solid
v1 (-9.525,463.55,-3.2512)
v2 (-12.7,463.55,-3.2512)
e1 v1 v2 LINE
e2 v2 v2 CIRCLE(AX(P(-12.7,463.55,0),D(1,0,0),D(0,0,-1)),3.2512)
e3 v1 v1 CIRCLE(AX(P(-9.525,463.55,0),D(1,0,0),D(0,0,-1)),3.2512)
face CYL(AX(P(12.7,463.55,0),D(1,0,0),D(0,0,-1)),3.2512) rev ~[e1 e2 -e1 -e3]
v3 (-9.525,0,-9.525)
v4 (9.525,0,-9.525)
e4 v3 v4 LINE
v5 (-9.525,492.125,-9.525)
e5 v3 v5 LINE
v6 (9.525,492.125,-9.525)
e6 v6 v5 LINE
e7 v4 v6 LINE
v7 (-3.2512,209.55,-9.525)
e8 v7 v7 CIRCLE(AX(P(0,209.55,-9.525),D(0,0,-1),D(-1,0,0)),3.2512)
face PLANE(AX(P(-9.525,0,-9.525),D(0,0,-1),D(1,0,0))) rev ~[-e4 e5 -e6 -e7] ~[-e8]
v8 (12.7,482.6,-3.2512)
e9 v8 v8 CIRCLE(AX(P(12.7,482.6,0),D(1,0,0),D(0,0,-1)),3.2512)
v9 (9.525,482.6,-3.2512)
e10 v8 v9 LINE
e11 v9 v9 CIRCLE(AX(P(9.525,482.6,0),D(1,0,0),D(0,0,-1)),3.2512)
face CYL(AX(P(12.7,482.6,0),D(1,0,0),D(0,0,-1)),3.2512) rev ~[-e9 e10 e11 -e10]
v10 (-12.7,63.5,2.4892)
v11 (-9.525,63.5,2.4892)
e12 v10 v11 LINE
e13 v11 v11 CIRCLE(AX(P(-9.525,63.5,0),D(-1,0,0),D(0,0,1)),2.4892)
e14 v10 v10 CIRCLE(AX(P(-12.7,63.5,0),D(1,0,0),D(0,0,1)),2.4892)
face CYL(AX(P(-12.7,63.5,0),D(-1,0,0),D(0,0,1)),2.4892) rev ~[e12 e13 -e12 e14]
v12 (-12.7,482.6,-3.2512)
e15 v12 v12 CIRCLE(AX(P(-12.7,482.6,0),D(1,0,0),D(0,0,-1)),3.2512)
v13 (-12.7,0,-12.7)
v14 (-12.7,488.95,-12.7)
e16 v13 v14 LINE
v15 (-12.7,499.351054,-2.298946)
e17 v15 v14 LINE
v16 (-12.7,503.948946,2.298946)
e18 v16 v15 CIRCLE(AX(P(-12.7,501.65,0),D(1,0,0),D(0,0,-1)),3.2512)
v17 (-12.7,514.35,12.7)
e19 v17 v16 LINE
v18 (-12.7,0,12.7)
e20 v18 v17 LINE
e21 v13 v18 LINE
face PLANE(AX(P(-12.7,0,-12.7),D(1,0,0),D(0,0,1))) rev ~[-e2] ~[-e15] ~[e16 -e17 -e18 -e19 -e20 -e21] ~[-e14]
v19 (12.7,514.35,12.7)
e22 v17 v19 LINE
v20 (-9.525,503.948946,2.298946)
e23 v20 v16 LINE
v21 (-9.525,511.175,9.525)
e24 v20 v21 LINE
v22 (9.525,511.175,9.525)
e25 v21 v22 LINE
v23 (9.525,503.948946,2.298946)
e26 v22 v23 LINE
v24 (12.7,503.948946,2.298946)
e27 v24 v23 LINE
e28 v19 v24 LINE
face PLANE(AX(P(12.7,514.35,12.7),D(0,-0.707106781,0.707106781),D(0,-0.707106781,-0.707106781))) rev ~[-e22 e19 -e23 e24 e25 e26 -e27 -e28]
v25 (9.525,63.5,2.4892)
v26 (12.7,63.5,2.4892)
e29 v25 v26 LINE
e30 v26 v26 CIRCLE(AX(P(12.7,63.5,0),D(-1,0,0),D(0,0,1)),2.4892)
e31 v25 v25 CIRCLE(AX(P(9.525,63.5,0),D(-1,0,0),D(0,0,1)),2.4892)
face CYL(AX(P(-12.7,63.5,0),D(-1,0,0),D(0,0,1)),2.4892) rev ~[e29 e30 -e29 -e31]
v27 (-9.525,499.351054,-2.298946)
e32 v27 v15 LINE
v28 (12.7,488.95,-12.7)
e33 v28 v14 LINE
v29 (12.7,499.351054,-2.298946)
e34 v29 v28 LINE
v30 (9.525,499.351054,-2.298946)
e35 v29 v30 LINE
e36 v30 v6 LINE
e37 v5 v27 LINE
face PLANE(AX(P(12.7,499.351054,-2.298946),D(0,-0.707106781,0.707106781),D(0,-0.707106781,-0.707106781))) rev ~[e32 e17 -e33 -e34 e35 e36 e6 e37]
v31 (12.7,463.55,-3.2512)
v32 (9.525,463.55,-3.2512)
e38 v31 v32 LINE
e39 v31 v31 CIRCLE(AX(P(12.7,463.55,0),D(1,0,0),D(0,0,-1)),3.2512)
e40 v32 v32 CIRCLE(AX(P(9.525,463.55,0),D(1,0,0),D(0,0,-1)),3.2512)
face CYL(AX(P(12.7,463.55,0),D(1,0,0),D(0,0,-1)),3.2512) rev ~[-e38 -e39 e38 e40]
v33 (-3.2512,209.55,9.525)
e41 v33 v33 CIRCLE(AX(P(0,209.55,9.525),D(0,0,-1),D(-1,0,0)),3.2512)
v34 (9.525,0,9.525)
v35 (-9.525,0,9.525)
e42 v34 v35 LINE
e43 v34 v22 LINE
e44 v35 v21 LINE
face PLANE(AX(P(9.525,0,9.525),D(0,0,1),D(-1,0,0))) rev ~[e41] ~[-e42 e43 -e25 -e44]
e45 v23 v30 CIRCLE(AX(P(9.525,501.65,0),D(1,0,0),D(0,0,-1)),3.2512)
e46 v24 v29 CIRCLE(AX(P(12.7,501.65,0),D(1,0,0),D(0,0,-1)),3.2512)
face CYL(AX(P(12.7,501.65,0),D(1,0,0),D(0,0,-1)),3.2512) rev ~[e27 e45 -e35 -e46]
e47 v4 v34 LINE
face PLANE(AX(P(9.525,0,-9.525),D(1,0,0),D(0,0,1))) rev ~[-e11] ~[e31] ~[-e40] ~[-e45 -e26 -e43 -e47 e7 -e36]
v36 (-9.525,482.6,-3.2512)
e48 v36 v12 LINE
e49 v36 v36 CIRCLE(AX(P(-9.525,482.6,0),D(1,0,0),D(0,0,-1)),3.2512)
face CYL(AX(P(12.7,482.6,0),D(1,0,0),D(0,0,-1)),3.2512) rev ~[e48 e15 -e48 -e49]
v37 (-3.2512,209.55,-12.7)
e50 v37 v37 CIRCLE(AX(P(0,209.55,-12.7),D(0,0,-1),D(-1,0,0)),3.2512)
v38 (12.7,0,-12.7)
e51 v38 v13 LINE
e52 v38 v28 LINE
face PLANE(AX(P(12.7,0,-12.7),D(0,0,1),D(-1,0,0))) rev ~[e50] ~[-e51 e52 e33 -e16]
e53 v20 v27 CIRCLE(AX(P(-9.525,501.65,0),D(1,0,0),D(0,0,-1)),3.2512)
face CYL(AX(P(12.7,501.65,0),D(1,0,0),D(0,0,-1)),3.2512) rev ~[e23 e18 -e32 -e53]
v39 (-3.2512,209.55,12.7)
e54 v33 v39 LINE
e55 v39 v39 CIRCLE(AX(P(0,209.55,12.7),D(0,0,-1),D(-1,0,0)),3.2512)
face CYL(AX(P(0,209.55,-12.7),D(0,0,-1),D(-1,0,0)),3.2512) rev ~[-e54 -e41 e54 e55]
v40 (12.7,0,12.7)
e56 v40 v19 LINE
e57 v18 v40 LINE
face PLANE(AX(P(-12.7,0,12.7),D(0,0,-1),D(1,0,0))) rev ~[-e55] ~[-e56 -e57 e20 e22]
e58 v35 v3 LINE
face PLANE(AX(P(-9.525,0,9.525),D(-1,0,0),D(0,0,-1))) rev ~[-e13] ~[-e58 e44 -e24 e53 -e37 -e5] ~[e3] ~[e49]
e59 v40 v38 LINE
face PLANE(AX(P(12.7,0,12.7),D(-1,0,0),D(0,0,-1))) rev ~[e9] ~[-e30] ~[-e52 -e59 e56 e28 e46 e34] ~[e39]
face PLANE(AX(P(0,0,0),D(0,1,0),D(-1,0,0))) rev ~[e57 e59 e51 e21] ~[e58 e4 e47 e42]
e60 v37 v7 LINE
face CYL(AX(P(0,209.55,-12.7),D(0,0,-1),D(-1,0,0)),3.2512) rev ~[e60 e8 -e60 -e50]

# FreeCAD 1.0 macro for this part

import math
import FreeCAD as App
import Part
import Sketcher

V = App.Vector
Q = App.Units.Quantity

doc = App.newDocument("Part")
params = doc.addObject("Spreadsheet::Sheet", "Params")
for row, (alias, value) in enumerate([
    ("sketch1_width", "1 in"),
    ("pad1_length", "20.25 in"),
    ("sketch2_width", "1 in"),
    ("sketch2_diameter", "0.256 in"),
    ("pocket1_length", "20.56 in"),
    ("sketch3_diameter", "0.256 in"),
    ("pocket2_length", "1 in"),
    ("sketch4_diameter", "0.196 in"),
    ("pocket3_length", "1 in"),
], start=1):
    params.set(f"A{row}", alias)
    params.set(f"B{row}", "=" + value)
    params.setAlias(f"B{row}", alias)

body = doc.addObject("PartDesign::Body", "Body")

# Sketch on XZ plane
sketch1 = body.newObject("Sketcher::SketchObject", "Sketch")
sketch1.AttachmentSupport = (doc.getObject("XZ_Plane"), [""])
sketch1.MapMode = "FlatFace"
sketch1.addGeometry([
    Part.LineSegment(V(12.7, 12.7, 0), V(12.7, -12.7, 0)),  # 0
    Part.LineSegment(V(12.7, -12.7, 0), V(-12.7, -12.7, 0)),  # 1
    Part.LineSegment(V(-12.7, -12.7, 0), V(-12.7, 12.7, 0)),  # 2
    Part.LineSegment(V(-12.7, 12.7, 0), V(12.7, 12.7, 0)),  # 3
    Part.LineSegment(V(9.525, 9.525, 0), V(-9.525, 9.525, 0)),  # 4
    Part.LineSegment(V(-9.525, 9.525, 0), V(-9.525, -9.525, 0)),  # 5
    Part.LineSegment(V(-9.525, -9.525, 0), V(9.525, -9.525, 0)),  # 6
    Part.LineSegment(V(9.525, -9.525, 0), V(9.525, 9.525, 0)),  # 7
], False)
sketch1.addConstraint([
    Sketcher.Constraint("Coincident", 0, 2, 1, 1),
    Sketcher.Constraint("Coincident", 1, 2, 2, 1),
    Sketcher.Constraint("Coincident", 2, 2, 3, 1),
    Sketcher.Constraint("Coincident", 3, 2, 0, 1),
    Sketcher.Constraint("Coincident", 4, 2, 5, 1),
    Sketcher.Constraint("Coincident", 5, 2, 6, 1),
    Sketcher.Constraint("Coincident", 6, 2, 7, 1),
    Sketcher.Constraint("Coincident", 7, 2, 4, 1),
    Sketcher.Constraint("Vertical", 0),
    Sketcher.Constraint("Horizontal", 1),
    Sketcher.Constraint("Vertical", 2),
    Sketcher.Constraint("Horizontal", 3),
    Sketcher.Constraint("Horizontal", 4),
    Sketcher.Constraint("Vertical", 5),
    Sketcher.Constraint("Horizontal", 6),
    Sketcher.Constraint("Vertical", 7),
    Sketcher.Constraint("Symmetric", 0, 2, 2, 2, -1, 1),
    Sketcher.Constraint("Symmetric", 4, 2, 6, 2, -1, 1),
    Sketcher.Constraint("Equal", 3, 0),
    Sketcher.Constraint("Equal", 6, 5),
    Sketcher.Constraint("DistanceX", 1, 2, 1, 1, Q("1 in")),
    Sketcher.Constraint("DistanceX", 2, 2, 4, 2, Q("0.125 in")),
])
sketch1.setExpression("Constraints[20]", "Params.sketch1_width")
pad1 = body.newObject("PartDesign::Pad", "Pad")
pad1.Profile = sketch1
pad1.setExpression("Length", "Params.pad1_length")
pad1.Reversed = True

# Sketch on YZ plane
sketch2 = body.newObject("Sketcher::SketchObject", "Sketch001")
sketch2.AttachmentSupport = (doc.getObject("YZ_Plane"), [""])
sketch2.MapMode = "FlatFace"
sketch2.AttachmentOffset = App.Placement(V(0, 0, 0.5 * 25.4), App.Rotation())
sketch2.addGeometry([
    Part.LineSegment(V(488.95, -12.7, 0), V(514.35, -12.7, 0)),  # 0
    Part.LineSegment(V(514.35, -12.7, 0), V(514.35, 12.7, 0)),  # 1
    Part.LineSegment(V(514.35, 12.7, 0), V(503.948946, 2.298946, 0)),  # 2
    Part.ArcOfCircle(Part.Circle(V(501.65, 0, 0), V(0, 0, 1), 3.2512), math.radians(45), math.radians(225)),  # 3
    Part.LineSegment(V(499.351054, -2.298946, 0), V(488.95, -12.7, 0)),  # 4
    Part.Circle(V(482.6, 0, 0), V(0, 0, 1), 3.2512),  # 5
    Part.Circle(V(463.55, 0, 0), V(0, 0, 1), 3.2512),  # 6
], False)
sketch2.addConstraint([
    Sketcher.Constraint("Coincident", 0, 2, 1, 1),
    Sketcher.Constraint("Coincident", 1, 2, 2, 1),
    Sketcher.Constraint("Coincident", 2, 2, 3, 1),
    Sketcher.Constraint("Coincident", 3, 2, 4, 1),
    Sketcher.Constraint("Coincident", 4, 2, 0, 1),
    Sketcher.Constraint("Horizontal", 0),
    Sketcher.Constraint("Vertical", 1),
    Sketcher.Constraint("Equal", 3, 5),
    Sketcher.Constraint("Equal", 5, 6),
    Sketcher.Constraint("PointOnObject", 3, 3, -1),
    Sketcher.Constraint("PointOnObject", 5, 3, -1),
    Sketcher.Constraint("PointOnObject", 6, 3, -1),
    Sketcher.Constraint("Parallel", 2, 4),
    Sketcher.Constraint("Equal", 0, 1),
    Sketcher.Constraint("Equal", 2, 4),
    Sketcher.Constraint("DistanceX", 0, 1, 0, 2, Q("1 in")),
    Sketcher.Constraint("Diameter", 5, Q("0.256 in")),
    Sketcher.Constraint("DistanceX", 5, 3, 3, 3, Q("0.75 in")),
    Sketcher.Constraint("DistanceX", 6, 3, 5, 3, Q("0.75 in")),
    Sketcher.Constraint("DistanceX", 5, 3, 0, 2, Q("1.25 in")),
    Sketcher.Constraint("DistanceX", -1, 1, 5, 3, Q("19 in")),
    Sketcher.Constraint("Angle", 2, Q("-135 deg")),
])
sketch2.setExpression("Constraints[15]", "Params.sketch2_width")
sketch2.setExpression("Constraints[16]", "Params.sketch2_diameter")
pocket1 = body.newObject("PartDesign::Pocket", "Pocket")
pocket1.Profile = sketch2
pocket1.setExpression("Length", "Params.pocket1_length")

# Sketch on XY plane
sketch3 = body.newObject("Sketcher::SketchObject", "Sketch002")
sketch3.AttachmentSupport = (doc.getObject("XY_Plane"), [""])
sketch3.MapMode = "FlatFace"
sketch3.AttachmentOffset = App.Placement(V(0, 0, -0.5 * 25.4), App.Rotation())
sketch3.addGeometry(Part.Circle(V(0, 209.55, 0), V(0, 0, 1), 3.2512), False)
sketch3.addConstraint([
    Sketcher.Constraint("PointOnObject", 0, 3, -2),
    Sketcher.Constraint("Diameter", 0, Q("0.256 in")),
    Sketcher.Constraint("DistanceY", -1, 1, 0, 3, Q("8.25 in")),
])
sketch3.setExpression("Constraints[1]", "Params.sketch3_diameter")
pocket2 = body.newObject("PartDesign::Pocket", "Pocket001")
pocket2.Profile = sketch3
pocket2.setExpression("Length", "Params.pocket2_length")
pocket2.Reversed = True

# Sketch on YZ plane
sketch4 = body.newObject("Sketcher::SketchObject", "Sketch003")
sketch4.AttachmentSupport = (doc.getObject("YZ_Plane"), [""])
sketch4.MapMode = "FlatFace"
sketch4.AttachmentOffset = App.Placement(V(0, 0, -0.5 * 25.4), App.Rotation())
sketch4.addGeometry(Part.Circle(V(63.5, 0, 0), V(0, 0, 1), 2.4892), False)
sketch4.addConstraint([
    Sketcher.Constraint("PointOnObject", 0, 3, -1),
    Sketcher.Constraint("Diameter", 0, Q("0.196 in")),
    Sketcher.Constraint("DistanceX", -1, 1, 0, 3, Q("2.5 in")),
])
sketch4.setExpression("Constraints[1]", "Params.sketch4_diameter")
pocket3 = body.newObject("PartDesign::Pocket", "Pocket002")
pocket3.Profile = sketch4
pocket3.setExpression("Length", "Params.pocket3_length")
pocket3.Reversed = True

doc.recompute()
